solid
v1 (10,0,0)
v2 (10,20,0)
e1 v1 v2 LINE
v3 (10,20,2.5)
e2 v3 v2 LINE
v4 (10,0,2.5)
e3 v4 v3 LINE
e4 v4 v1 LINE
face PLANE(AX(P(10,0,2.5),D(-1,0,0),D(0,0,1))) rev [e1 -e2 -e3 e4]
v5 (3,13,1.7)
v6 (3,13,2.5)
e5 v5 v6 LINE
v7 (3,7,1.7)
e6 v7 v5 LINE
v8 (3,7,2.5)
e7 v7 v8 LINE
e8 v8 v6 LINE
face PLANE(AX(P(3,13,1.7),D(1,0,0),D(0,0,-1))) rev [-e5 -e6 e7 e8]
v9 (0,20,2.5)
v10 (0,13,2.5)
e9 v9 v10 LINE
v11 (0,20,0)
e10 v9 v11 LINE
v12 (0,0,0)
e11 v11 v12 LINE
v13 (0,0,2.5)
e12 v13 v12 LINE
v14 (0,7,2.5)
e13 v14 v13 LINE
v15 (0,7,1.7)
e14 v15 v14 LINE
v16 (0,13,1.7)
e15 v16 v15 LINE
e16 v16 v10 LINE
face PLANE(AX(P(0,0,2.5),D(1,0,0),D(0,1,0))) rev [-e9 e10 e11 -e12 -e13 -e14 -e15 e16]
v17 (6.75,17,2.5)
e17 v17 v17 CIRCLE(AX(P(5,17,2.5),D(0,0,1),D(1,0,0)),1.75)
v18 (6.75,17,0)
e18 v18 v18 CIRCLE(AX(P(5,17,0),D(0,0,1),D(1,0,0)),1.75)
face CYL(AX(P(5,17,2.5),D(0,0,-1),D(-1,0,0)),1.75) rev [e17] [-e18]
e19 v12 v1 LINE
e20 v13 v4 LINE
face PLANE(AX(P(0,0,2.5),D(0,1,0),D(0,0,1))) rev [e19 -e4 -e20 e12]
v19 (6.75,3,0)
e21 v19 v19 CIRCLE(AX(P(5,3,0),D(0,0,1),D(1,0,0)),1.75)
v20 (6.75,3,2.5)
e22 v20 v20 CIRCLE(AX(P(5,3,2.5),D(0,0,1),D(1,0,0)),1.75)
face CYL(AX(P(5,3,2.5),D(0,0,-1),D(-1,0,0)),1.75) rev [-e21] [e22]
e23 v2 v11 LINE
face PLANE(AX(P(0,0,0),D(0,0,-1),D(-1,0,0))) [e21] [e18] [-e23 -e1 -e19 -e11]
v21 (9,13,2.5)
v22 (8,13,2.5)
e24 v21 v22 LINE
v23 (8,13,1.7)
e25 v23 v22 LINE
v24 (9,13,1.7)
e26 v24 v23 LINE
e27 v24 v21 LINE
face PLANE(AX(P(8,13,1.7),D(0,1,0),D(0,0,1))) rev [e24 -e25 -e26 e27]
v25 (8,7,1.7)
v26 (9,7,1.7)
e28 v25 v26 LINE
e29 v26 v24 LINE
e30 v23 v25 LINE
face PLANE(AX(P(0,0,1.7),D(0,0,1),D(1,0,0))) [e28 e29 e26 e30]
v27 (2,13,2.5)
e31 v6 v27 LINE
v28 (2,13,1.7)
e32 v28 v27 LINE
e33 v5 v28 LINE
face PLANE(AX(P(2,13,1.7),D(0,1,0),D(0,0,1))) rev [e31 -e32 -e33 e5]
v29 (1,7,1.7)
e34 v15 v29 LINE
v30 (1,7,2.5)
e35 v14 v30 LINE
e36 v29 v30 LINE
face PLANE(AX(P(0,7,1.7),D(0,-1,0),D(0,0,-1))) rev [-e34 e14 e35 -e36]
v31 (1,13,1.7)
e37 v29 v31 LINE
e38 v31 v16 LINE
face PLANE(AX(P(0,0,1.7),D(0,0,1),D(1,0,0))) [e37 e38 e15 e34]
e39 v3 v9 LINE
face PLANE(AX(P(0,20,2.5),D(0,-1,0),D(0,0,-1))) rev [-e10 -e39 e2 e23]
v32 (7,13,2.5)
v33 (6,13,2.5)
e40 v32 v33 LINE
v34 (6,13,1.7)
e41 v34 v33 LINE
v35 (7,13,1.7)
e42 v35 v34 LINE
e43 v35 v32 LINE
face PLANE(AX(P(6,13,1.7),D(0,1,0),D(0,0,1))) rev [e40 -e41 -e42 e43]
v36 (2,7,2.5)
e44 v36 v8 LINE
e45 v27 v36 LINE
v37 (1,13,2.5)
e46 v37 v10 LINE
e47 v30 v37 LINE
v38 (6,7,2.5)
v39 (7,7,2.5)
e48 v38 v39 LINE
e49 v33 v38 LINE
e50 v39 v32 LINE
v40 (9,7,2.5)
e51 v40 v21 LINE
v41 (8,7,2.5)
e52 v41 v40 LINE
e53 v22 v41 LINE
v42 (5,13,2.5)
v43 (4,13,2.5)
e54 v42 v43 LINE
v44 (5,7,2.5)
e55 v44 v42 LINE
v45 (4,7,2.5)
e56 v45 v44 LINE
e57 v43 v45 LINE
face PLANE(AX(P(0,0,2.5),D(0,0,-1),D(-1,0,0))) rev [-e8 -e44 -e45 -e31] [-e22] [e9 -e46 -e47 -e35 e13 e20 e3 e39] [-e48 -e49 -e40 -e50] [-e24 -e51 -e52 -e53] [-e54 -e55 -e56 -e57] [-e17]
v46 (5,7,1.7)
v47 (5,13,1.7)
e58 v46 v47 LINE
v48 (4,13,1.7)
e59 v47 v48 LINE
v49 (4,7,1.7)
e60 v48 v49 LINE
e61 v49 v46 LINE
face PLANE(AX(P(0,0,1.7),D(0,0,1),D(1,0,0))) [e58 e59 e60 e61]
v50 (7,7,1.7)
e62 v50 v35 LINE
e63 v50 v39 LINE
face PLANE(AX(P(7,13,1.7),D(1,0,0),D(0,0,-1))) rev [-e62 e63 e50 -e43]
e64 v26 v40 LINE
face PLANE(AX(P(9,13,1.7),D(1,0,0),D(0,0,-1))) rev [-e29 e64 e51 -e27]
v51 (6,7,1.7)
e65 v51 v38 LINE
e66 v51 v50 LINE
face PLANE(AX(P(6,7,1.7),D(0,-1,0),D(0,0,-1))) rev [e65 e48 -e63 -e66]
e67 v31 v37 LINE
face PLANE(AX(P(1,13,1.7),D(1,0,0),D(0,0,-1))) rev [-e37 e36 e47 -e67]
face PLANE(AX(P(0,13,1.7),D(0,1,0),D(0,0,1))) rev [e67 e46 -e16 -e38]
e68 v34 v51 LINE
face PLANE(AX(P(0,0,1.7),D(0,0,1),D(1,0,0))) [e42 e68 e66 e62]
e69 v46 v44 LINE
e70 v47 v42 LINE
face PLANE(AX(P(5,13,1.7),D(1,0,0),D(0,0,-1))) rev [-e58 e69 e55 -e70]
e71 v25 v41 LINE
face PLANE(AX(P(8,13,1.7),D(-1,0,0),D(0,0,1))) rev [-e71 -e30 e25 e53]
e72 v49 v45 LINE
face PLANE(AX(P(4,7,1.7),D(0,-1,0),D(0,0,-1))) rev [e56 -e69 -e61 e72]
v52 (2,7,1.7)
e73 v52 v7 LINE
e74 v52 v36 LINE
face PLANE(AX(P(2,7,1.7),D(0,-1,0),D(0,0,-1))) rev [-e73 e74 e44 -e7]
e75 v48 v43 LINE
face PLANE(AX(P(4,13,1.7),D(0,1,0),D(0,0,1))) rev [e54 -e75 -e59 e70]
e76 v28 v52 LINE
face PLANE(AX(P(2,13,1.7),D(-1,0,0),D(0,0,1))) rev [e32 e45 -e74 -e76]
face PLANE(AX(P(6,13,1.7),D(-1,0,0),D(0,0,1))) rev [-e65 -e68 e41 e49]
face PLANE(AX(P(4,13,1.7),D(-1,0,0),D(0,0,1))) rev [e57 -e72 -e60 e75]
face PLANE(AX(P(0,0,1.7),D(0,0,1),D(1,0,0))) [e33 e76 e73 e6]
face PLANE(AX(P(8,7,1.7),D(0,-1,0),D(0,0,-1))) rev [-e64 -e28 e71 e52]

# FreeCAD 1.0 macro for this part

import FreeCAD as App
import Part
import Sketcher
from FreeCAD import Vector


def add_polygon(sketch, points):
    """Adds a closed chain of lines whose ends are joined by coincident constraints."""
    first, n = sketch.GeometryCount, len(points)
    for a, b in zip(points, points[1:] + points[:1]):
        sketch.addGeometry(Part.LineSegment(App.Vector(*a, 0), App.Vector(*b, 0)), False)
    for i in range(n):
        sketch.addConstraint(Sketcher.Constraint("Coincident", first + i, 2, first + (i + 1) % n, 1))

doc = App.newDocument("Part")
params = doc.addObject("Spreadsheet::Sheet", "Params")
for row, (alias, value) in enumerate([
    ("sketch1_diameter", "3.5 mm"),
    ("sketch1_width", "10 mm"),
    ("sketch1_height", "20 mm"),
    ("pad1_length", "2.5 mm"),
    ("sketch2_width", "1 mm"),
    ("sketch2_height", "6 mm"),
    ("pocket1_length", "0.8 mm"),
], start=1):
    params.set(f"A{row}", alias)
    params.set(f"B{row}", "=" + value)
    params.setAlias(f"B{row}", alias)

body = doc.addObject("PartDesign::Body", "Body")

sketch1 = body.newObject("Sketcher::SketchObject", "Sketch")
sketch1.AttachmentSupport = (doc.getObject("XY_Plane"), [""])
sketch1.MapMode = "FlatFace"
add_polygon(sketch1, [(0, 20), (0, 0), (10, 0), (10, 20)])
sketch1.addGeometry(Part.Circle(Vector(5, 3, 0), Vector(0, 0, 1), 1.75), False)
sketch1.addGeometry(Part.Circle(Vector(5, 17, 0), Vector(0, 0, 1), 1.75), False)
sketch1.addConstraint([
    Sketcher.Constraint("Vertical", 0),
    Sketcher.Constraint("Horizontal", 1),
    Sketcher.Constraint("Vertical", 2),
    Sketcher.Constraint("Horizontal", 3),
    Sketcher.Constraint("Coincident", 0, 2, -1, 1),
    Sketcher.Constraint("Equal", 4, 5),
    Sketcher.Constraint("Vertical", 4, 3, 5, 3),
    Sketcher.Constraint("Diameter", 4, 3.5),
    Sketcher.Constraint("DistanceX", 1, 1, 1, 2, 10.0),
    Sketcher.Constraint("DistanceY", 0, 2, 0, 1, 20.0),
    Sketcher.Constraint("DistanceX", -1, 1, 4, 3, 5.0),
    Sketcher.Constraint("DistanceY", -1, 1, 4, 3, 3.0),
    Sketcher.Constraint("DistanceY", -1, 1, 5, 3, 17.0),
])
sketch1.setExpression("Constraints[11]", "Params.sketch1_diameter")
sketch1.setExpression("Constraints[12]", "Params.sketch1_width")
sketch1.setExpression("Constraints[13]", "Params.sketch1_height")
pad1 = body.newObject("PartDesign::Pad", "Pad")
pad1.Profile = sketch1
pad1.setExpression("Length", "Params.pad1_length")

sketch2 = body.newObject("Sketcher::SketchObject", "Sketch001")
sketch2.AttachmentSupport = (doc.getObject("XY_Plane"), [""])
sketch2.MapMode = "FlatFace"
sketch2.AttachmentOffset = App.Placement(Vector(0, 0, 2.5), App.Rotation())
add_polygon(sketch2, [(0, 13), (0, 7), (1, 7), (1, 13)])
add_polygon(sketch2, [(2, 13), (2, 7), (3, 7), (3, 13)])
add_polygon(sketch2, [(4, 13), (4, 7), (5, 7), (5, 13)])
add_polygon(sketch2, [(6, 13), (6, 7), (7, 7), (7, 13)])
add_polygon(sketch2, [(8, 13), (8, 7), (9, 7), (9, 13)])
sketch2.addConstraint([
    Sketcher.Constraint("Vertical", 0),
    Sketcher.Constraint("Horizontal", 1),
    Sketcher.Constraint("Vertical", 2),
    Sketcher.Constraint("Horizontal", 3),
    Sketcher.Constraint("Vertical", 4),
    Sketcher.Constraint("Horizontal", 5),
    Sketcher.Constraint("Vertical", 6),
    Sketcher.Constraint("Horizontal", 7),
    Sketcher.Constraint("Vertical", 8),
    Sketcher.Constraint("Horizontal", 9),
    Sketcher.Constraint("Vertical", 10),
    Sketcher.Constraint("Horizontal", 11),
    Sketcher.Constraint("Vertical", 12),
    Sketcher.Constraint("Horizontal", 13),
    Sketcher.Constraint("Vertical", 14),
    Sketcher.Constraint("Horizontal", 15),
    Sketcher.Constraint("Vertical", 16),
    Sketcher.Constraint("Horizontal", 17),
    Sketcher.Constraint("Vertical", 18),
    Sketcher.Constraint("Horizontal", 19),
    Sketcher.Constraint("PointOnObject", 0, 2, -2),
    Sketcher.Constraint("Horizontal", 1, 2, 4, 2),
    Sketcher.Constraint("Horizontal", 3, 2, 6, 2),
    Sketcher.Constraint("Horizontal", 5, 2, 8, 2),
    Sketcher.Constraint("Horizontal", 7, 2, 10, 2),
    Sketcher.Constraint("Horizontal", 9, 2, 12, 2),
    Sketcher.Constraint("Horizontal", 11, 2, 14, 2),
    Sketcher.Constraint("Horizontal", 13, 2, 16, 2),
    Sketcher.Constraint("Horizontal", 15, 2, 18, 2),
    Sketcher.Constraint("Equal", 3, 5),
    Sketcher.Constraint("Equal", 7, 9),
    Sketcher.Constraint("Equal", 11, 13),
    Sketcher.Constraint("Equal", 15, 17),
    Sketcher.Constraint("DistanceX", 1, 1, 1, 2, 1.0),
    Sketcher.Constraint("DistanceY", 0, 2, 0, 1, 6.0),
    Sketcher.Constraint("DistanceY", -1, 1, 0, 2, 7.0),
    Sketcher.Constraint("DistanceX", -1, 1, 4, 2, 2.0),
    Sketcher.Constraint("DistanceX", -1, 1, 8, 2, 4.0),
    Sketcher.Constraint("DistanceX", -1, 1, 12, 2, 6.0),
    Sketcher.Constraint("DistanceX", -1, 1, 16, 2, 8.0),
])
sketch2.setExpression("Constraints[53]", "Params.sketch2_width")
sketch2.setExpression("Constraints[54]", "Params.sketch2_height")
pocket1 = body.newObject("PartDesign::Pocket", "Pocket")
pocket1.Profile = sketch2
pocket1.setExpression("Length", "Params.pocket1_length")

doc.recompute()
